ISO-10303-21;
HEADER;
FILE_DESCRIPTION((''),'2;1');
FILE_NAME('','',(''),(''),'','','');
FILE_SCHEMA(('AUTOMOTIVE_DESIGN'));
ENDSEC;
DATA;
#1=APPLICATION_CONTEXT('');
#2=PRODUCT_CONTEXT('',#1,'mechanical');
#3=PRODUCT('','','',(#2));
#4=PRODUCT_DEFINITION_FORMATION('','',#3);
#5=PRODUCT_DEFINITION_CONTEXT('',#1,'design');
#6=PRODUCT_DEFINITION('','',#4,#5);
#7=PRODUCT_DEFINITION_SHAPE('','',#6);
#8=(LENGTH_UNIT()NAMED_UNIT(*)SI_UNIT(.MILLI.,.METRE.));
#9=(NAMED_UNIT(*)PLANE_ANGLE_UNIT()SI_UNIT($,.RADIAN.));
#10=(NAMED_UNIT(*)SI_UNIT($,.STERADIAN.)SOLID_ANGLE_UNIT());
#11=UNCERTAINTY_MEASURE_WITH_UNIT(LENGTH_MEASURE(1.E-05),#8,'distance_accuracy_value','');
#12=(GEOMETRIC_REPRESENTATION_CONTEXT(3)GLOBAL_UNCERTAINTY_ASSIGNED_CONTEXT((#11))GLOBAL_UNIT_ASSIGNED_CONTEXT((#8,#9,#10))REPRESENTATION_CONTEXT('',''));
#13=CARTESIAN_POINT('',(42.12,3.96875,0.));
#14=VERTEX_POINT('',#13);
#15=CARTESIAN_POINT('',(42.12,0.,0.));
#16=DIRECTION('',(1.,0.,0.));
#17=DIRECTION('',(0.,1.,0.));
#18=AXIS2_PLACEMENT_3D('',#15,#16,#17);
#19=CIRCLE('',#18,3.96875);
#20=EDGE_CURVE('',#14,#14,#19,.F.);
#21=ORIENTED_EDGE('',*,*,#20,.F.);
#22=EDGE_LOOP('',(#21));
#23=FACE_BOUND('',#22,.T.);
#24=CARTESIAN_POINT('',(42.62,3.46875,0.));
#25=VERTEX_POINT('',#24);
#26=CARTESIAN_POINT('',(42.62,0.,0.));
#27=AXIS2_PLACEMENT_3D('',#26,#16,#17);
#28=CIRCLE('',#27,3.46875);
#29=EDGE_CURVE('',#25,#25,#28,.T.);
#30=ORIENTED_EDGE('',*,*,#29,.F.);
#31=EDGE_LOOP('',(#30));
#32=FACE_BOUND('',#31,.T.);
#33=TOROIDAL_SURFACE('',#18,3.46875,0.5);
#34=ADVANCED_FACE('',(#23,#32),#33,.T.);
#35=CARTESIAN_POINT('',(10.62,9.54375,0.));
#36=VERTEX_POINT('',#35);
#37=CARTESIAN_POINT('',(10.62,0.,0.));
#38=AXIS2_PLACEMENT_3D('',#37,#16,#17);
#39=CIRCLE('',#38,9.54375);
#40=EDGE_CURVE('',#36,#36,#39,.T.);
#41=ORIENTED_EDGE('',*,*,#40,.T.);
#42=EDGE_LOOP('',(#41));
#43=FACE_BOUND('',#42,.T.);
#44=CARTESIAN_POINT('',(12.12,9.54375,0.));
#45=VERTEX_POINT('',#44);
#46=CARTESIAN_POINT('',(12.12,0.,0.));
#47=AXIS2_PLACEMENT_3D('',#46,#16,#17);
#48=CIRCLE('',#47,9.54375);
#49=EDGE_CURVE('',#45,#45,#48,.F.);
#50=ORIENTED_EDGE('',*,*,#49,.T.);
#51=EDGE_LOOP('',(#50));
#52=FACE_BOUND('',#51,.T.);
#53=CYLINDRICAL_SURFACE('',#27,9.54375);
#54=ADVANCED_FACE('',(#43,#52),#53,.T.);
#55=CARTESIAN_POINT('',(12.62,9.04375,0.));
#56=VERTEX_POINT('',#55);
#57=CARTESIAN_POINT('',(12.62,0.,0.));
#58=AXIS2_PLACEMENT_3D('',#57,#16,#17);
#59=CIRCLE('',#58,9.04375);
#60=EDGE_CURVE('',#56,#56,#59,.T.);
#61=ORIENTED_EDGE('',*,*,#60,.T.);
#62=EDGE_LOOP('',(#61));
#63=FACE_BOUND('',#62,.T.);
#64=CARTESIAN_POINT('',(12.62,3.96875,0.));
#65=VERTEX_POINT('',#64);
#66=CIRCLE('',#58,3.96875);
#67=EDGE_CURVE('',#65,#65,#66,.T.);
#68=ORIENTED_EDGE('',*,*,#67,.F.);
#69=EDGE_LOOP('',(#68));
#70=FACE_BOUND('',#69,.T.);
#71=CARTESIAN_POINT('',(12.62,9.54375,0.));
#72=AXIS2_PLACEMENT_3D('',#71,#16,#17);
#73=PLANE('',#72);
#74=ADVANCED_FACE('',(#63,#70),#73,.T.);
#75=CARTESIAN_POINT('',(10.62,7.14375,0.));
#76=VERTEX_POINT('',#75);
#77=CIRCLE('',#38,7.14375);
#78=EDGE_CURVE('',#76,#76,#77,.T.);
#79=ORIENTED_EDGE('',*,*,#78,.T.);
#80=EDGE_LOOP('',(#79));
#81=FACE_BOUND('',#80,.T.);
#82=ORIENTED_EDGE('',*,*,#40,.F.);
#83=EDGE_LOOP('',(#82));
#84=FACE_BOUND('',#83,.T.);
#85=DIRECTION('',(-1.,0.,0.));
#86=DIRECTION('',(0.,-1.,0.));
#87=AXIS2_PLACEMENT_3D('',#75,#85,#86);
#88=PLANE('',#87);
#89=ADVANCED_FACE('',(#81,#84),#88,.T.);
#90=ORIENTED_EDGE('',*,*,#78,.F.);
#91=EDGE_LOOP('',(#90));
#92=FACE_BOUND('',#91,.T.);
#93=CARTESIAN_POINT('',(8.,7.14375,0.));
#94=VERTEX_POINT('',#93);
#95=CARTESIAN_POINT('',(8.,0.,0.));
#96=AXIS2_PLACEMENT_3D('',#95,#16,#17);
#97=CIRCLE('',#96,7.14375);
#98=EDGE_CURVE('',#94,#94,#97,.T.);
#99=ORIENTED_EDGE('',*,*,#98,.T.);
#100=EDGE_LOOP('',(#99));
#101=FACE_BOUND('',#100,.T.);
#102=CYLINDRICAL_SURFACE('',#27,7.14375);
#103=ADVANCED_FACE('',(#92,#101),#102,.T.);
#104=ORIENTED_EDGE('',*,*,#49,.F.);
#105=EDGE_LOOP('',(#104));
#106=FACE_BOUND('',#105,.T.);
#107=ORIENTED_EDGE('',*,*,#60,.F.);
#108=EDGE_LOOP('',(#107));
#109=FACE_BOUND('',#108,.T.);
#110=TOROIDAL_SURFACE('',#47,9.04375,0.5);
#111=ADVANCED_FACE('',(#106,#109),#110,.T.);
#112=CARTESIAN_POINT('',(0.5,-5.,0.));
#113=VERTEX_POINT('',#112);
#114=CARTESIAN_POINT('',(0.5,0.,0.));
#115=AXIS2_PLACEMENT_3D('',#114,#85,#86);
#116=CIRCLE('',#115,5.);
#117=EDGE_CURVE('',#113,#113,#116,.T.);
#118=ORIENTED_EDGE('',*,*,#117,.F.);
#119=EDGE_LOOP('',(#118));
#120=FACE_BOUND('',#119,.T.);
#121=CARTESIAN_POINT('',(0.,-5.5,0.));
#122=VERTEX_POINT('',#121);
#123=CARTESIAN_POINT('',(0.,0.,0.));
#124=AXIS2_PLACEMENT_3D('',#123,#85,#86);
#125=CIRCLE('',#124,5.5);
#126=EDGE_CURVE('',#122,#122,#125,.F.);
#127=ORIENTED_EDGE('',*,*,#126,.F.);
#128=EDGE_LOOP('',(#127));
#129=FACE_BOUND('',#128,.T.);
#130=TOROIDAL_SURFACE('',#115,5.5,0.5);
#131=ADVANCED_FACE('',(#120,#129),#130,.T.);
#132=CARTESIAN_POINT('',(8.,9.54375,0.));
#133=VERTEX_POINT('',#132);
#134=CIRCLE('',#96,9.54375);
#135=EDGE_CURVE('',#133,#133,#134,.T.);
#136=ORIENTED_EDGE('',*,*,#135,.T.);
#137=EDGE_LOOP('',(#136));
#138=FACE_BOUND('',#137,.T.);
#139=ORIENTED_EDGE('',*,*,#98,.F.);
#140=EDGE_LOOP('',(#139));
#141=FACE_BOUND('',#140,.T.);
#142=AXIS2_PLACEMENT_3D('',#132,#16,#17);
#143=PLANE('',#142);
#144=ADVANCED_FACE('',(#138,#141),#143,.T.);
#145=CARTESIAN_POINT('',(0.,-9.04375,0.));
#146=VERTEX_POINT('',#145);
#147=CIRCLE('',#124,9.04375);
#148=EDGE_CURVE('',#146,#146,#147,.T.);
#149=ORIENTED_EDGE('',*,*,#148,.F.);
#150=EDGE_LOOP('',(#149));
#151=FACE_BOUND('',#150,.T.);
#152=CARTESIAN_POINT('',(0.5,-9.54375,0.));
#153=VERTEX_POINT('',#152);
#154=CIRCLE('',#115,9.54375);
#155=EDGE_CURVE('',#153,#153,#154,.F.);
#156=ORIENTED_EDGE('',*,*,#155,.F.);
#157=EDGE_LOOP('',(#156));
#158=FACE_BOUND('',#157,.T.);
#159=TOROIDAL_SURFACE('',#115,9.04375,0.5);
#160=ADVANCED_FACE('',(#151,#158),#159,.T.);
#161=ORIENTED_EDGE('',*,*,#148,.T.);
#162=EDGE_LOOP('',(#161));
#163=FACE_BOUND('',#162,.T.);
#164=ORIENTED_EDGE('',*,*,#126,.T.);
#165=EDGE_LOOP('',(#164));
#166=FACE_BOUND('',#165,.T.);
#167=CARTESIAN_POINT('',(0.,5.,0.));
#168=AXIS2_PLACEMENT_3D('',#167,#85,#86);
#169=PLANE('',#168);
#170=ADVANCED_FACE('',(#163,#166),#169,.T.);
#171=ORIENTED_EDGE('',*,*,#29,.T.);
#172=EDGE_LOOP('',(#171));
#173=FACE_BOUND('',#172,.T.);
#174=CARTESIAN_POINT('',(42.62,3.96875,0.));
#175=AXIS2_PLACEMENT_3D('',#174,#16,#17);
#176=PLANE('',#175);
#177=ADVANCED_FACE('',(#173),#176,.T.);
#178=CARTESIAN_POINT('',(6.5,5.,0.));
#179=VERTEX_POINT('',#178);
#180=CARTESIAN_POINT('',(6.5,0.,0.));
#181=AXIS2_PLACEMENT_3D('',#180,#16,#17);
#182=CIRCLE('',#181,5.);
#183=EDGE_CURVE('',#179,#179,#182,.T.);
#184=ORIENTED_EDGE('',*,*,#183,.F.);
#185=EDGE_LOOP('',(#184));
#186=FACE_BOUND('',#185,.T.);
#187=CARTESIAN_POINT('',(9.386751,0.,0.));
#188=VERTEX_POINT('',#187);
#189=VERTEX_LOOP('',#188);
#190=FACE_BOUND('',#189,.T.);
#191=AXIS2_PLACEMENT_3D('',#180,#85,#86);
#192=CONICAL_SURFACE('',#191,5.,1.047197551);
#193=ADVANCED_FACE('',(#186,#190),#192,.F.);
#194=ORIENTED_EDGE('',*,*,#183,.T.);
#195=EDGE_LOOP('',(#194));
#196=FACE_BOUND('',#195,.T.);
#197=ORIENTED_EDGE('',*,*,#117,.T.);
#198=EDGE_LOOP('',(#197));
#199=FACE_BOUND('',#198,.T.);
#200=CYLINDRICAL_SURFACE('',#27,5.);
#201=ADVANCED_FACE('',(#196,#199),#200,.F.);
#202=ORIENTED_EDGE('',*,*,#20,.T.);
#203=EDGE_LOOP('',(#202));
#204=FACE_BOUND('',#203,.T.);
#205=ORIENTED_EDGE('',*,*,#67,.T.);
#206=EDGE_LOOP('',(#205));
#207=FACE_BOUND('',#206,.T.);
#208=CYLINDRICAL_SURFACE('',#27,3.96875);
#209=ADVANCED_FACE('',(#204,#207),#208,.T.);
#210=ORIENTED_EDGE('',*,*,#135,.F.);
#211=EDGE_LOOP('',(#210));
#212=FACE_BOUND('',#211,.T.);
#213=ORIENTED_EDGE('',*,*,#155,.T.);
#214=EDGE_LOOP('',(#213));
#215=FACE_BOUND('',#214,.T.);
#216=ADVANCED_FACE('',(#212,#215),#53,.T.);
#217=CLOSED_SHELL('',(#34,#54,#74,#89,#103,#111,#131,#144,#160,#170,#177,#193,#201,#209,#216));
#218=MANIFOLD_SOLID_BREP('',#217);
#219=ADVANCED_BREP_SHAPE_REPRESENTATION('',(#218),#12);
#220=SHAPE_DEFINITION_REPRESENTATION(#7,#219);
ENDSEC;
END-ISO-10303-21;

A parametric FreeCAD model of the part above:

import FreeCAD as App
import Part
import Sketcher
from FreeCAD import Vector
Q = App.Units.Quantity


def edges_at(feature, points):
    """Names of the edges that pass closest to the given points."""
    edges = feature.Shape.Edges
    near = lambda p: min(range(len(edges)), key=lambda i: edges[i].distToShape(Part.Vertex(*p))[0])
    return sorted({f"Edge{near(p) + 1}" for p in points})


def add_polygon(sketch, points):
    """Adds a closed chain of lines whose ends are joined by coincident constraints."""
    first, n = sketch.GeometryCount, len(points)
    for a, b in zip(points, points[1:] + points[:1]):
        sketch.addGeometry(Part.LineSegment(App.Vector(*a, 0), App.Vector(*b, 0)), False)
    for i in range(n):
        sketch.addConstraint(Sketcher.Constraint("Coincident", first + i, 2, first + (i + 1) % n, 1))

doc = App.newDocument("Part")
body = doc.addObject("PartDesign::Body", "Body")

sketch1 = body.newObject("Sketcher::SketchObject", "Sketch")
sketch1.AttachmentSupport = (doc.getObject("XY_Plane"), [""])
sketch1.MapMode = "FlatFace"
add_polygon(sketch1, [(0, 9.5), (0, 5), (6.5, 5), (9.4, 0), (42.6, 0), (42.6, 4), (12.6, 4), (12.6, 9.5), (10.6, 9.5), (10.6, 7.1), (8, 7.1), (8, 9.5)])
sketch1.addConstraint([
    Sketcher.Constraint("Vertical", 0),
    Sketcher.Constraint("Horizontal", 1),
    Sketcher.Constraint("Horizontal", 3),
    Sketcher.Constraint("Vertical", 4),
    Sketcher.Constraint("Horizontal", 5),
    Sketcher.Constraint("Vertical", 6),
    Sketcher.Constraint("Horizontal", 7),
    Sketcher.Constraint("Vertical", 8),
    Sketcher.Constraint("Horizontal", 9),
    Sketcher.Constraint("Vertical", 10),
    Sketcher.Constraint("Horizontal", 11),
    Sketcher.Constraint("PointOnObject", 0, 2, -2),
    Sketcher.Constraint("PointOnObject", 2, 2, -1),
    Sketcher.Constraint("Horizontal", 7, 2, 10, 2),
    Sketcher.Constraint("DistanceX", 5, 2, 5, 1, 30.0),
    Sketcher.Constraint("DistanceX", 7, 2, 7, 1, 2.0),
    Sketcher.Constraint("DistanceX", 11, 2, 11, 1, 8.0),
    Sketcher.Constraint("Angle", 2, Q("-60 deg")),
    Sketcher.Constraint("DistanceX", 1, 1, 1, 2, 6.5),
    Sketcher.Constraint("DistanceY", 8, 2, 8, 1, 2.4),
    Sketcher.Constraint("DistanceY", -1, 1, 0, 2, 5.0),
    Sketcher.Constraint("DistanceX", 9, 2, 9, 1, 2.62),
    Sketcher.Constraint("DistanceY", 6, 1, 6, 2, 5.575),
    Sketcher.Constraint("DistanceY", 0, 2, 0, 1, 4.54375),
])
revolution = body.newObject("PartDesign::Revolution", "Revolution")
revolution.Profile = sketch1
revolution.ReferenceAxis = (sketch1, ["H_Axis"])
revolution.Angle = 360
doc.recompute()

fillet = body.newObject("PartDesign::Fillet", "Fillet")
fillet.Base = (revolution, edges_at(revolution, [(42.62, -3.969, 0)]))
fillet.Radius = 0.5
doc.recompute()

fillet2 = body.newObject("PartDesign::Fillet", "Fillet001")
fillet2.Base = (fillet, edges_at(fillet, [(0, -5, 0)]))
fillet2.Radius = 0.5
doc.recompute()

fillet3 = body.newObject("PartDesign::Fillet", "Fillet002")
fillet3.Base = (fillet2, edges_at(fillet2, [(0, -9.544, 0)]))
fillet3.Radius = 0.5
doc.recompute()

fillet4 = body.newObject("PartDesign::Fillet", "Fillet003")
fillet4.Base = (fillet3, edges_at(fillet3, [(12.62, -9.544, 0)]))
fillet4.Radius = 0.5

doc.recompute()
